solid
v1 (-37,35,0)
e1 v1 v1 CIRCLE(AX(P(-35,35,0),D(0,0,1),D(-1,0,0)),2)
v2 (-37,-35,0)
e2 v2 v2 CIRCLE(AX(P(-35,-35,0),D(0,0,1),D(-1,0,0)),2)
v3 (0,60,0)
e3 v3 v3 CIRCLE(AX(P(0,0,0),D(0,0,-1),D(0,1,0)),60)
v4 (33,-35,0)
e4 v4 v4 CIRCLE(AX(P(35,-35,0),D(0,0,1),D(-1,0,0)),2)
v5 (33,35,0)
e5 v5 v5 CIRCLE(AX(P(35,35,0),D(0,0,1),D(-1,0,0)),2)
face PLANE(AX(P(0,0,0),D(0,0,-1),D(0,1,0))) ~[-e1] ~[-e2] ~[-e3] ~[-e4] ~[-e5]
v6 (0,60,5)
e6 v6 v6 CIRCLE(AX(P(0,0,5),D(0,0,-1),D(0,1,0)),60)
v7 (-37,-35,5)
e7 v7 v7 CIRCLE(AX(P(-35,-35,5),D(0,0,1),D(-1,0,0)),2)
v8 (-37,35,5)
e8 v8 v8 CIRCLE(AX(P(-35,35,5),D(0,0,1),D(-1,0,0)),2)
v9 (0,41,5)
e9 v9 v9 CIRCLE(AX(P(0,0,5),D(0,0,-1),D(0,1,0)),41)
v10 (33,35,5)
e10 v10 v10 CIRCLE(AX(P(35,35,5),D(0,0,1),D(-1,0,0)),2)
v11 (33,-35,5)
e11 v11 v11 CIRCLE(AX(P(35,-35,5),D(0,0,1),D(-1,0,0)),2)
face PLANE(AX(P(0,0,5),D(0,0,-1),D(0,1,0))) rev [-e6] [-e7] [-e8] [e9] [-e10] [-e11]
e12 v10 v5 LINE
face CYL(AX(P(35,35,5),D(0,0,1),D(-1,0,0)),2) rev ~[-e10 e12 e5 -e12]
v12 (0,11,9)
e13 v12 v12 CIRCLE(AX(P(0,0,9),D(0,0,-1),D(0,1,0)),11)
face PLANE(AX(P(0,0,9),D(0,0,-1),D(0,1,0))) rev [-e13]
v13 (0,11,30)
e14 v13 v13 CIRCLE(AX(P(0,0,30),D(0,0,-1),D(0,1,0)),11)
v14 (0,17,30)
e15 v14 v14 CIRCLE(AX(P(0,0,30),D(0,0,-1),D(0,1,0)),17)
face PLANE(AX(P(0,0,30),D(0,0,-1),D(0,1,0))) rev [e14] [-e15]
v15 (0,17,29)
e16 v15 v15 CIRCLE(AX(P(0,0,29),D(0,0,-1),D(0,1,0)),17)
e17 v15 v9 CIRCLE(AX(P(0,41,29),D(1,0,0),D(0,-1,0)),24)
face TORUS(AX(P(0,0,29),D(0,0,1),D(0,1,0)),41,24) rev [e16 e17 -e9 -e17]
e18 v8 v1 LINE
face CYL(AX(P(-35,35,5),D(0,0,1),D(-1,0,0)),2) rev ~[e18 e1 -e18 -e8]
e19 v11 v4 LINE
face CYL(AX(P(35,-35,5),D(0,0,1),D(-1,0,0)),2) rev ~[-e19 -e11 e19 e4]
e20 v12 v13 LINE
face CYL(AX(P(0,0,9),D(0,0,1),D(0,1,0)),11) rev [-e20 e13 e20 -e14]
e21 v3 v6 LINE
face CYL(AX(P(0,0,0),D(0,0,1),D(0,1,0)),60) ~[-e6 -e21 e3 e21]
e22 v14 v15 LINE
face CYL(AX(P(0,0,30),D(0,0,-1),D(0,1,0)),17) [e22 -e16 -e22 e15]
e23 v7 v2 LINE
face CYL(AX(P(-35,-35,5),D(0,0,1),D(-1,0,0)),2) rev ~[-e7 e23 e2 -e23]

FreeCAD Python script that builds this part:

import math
import FreeCAD as App
import Part
import Sketcher
Q = App.Units.Quantity

doc = App.newDocument("Part")
body = doc.addObject("PartDesign::Body", "Body")

sketch1 = body.newObject("Sketcher::SketchObject", "Sketch")
sketch1.AttachmentSupport = (doc.getObject("YZ_Plane"), [""])
sketch1.MapMode = "FlatFace"
sketch1.addGeometry([
    Part.LineSegment(App.Vector(0, 9, 0), App.Vector(0, 0, 0)),
    Part.LineSegment(App.Vector(0, 0, 0), App.Vector(60, 0, 0)),
    Part.LineSegment(App.Vector(60, 0, 0), App.Vector(60, 5, 0)),
    Part.LineSegment(App.Vector(60, 5, 0), App.Vector(41, 5, 0)),
    Part.ArcOfCircle(Part.Circle(App.Vector(41, 29, 0), App.Vector(0, 0, 1), 24), math.radians(180), math.radians(270)),
    Part.LineSegment(App.Vector(17, 29, 0), App.Vector(17, 30, 0)),
    Part.LineSegment(App.Vector(17, 30, 0), App.Vector(11, 30, 0)),
    Part.LineSegment(App.Vector(11, 30, 0), App.Vector(11, 9, 0)),
    Part.LineSegment(App.Vector(11, 9, 0), App.Vector(0, 9, 0)),
], False)
sketch1.addConstraint([
    Sketcher.Constraint("Coincident", 0, 2, 1, 1),
    Sketcher.Constraint("Coincident", 1, 2, 2, 1),
    Sketcher.Constraint("Coincident", 2, 2, 3, 1),
    Sketcher.Constraint("Tangent", 3, 2, 4, 2),
    Sketcher.Constraint("Tangent", 4, 1, 5, 1),
    Sketcher.Constraint("Coincident", 5, 2, 6, 1),
    Sketcher.Constraint("Coincident", 6, 2, 7, 1),
    Sketcher.Constraint("Coincident", 7, 2, 8, 1),
    Sketcher.Constraint("Coincident", 8, 2, 0, 1),
    Sketcher.Constraint("Vertical", 0),
    Sketcher.Constraint("Horizontal", 1),
    Sketcher.Constraint("Vertical", 2),
    Sketcher.Constraint("Horizontal", 3),
    Sketcher.Constraint("Vertical", 5),
    Sketcher.Constraint("Horizontal", 6),
    Sketcher.Constraint("Vertical", 7),
    Sketcher.Constraint("Horizontal", 8),
    Sketcher.Constraint("Coincident", 0, 2, -1, 1),
    Sketcher.Constraint("Radius", 4, Q("24 mm")),
    Sketcher.Constraint("DistanceX", 1, 1, 1, 2, Q("60 mm")),
    Sketcher.Constraint("DistanceX", 6, 2, 6, 1, Q("6 mm")),
    Sketcher.Constraint("DistanceX", 8, 2, 8, 1, Q("11 mm")),
    Sketcher.Constraint("DistanceY", 0, 2, 0, 1, Q("9 mm")),
    Sketcher.Constraint("DistanceY", 2, 1, 2, 2, Q("5 mm")),
    Sketcher.Constraint("DistanceY", -1, 1, 5, 2, Q("30 mm")),
])
revolution = body.newObject("PartDesign::Revolution", "Revolution")
revolution.Profile = sketch1
revolution.ReferenceAxis = (sketch1, ["V_Axis"])
revolution.Angle = 360

sketch2 = body.newObject("Sketcher::SketchObject", "Sketch001")
sketch2.AttachmentSupport = (doc.getObject("XY_Plane"), [""])
sketch2.MapMode = "FlatFace"
sketch2.AttachmentOffset = App.Placement(App.Vector(0, 0, 5), App.Rotation())
sketch2.addGeometry([
    Part.Circle(App.Vector(35, -35, 0), App.Vector(0, 0, 1), 2),
    Part.Circle(App.Vector(35, 35, 0), App.Vector(0, 0, 1), 2),
    Part.Circle(App.Vector(-35, 35, 0), App.Vector(0, 0, 1), 2),
    Part.Circle(App.Vector(-35, -35, 0), App.Vector(0, 0, 1), 2),
], False)
sketch2.addConstraint([
    Sketcher.Constraint("Equal", 0, 1),
    Sketcher.Constraint("Equal", 1, 2),
    Sketcher.Constraint("Equal", 2, 3),
    Sketcher.Constraint("Symmetric", 0, 3, 2, 3, -1, 1),
    Sketcher.Constraint("Symmetric", 1, 3, 3, 3, -1, 1),
    Sketcher.Constraint("Symmetric", 1, 3, 2, 3, -2),
    Sketcher.Constraint("Diameter", 0, Q("4 mm")),
    Sketcher.Constraint("DistanceX", -1, 1, 0, 3, Q("35 mm")),
    Sketcher.Constraint("DistanceY", 0, 3, -1, 1, Q("35 mm")),
])
pocket1 = body.newObject("PartDesign::Pocket", "Pocket")
pocket1.Profile = sketch2
pocket1.Length = 6

doc.recompute()
